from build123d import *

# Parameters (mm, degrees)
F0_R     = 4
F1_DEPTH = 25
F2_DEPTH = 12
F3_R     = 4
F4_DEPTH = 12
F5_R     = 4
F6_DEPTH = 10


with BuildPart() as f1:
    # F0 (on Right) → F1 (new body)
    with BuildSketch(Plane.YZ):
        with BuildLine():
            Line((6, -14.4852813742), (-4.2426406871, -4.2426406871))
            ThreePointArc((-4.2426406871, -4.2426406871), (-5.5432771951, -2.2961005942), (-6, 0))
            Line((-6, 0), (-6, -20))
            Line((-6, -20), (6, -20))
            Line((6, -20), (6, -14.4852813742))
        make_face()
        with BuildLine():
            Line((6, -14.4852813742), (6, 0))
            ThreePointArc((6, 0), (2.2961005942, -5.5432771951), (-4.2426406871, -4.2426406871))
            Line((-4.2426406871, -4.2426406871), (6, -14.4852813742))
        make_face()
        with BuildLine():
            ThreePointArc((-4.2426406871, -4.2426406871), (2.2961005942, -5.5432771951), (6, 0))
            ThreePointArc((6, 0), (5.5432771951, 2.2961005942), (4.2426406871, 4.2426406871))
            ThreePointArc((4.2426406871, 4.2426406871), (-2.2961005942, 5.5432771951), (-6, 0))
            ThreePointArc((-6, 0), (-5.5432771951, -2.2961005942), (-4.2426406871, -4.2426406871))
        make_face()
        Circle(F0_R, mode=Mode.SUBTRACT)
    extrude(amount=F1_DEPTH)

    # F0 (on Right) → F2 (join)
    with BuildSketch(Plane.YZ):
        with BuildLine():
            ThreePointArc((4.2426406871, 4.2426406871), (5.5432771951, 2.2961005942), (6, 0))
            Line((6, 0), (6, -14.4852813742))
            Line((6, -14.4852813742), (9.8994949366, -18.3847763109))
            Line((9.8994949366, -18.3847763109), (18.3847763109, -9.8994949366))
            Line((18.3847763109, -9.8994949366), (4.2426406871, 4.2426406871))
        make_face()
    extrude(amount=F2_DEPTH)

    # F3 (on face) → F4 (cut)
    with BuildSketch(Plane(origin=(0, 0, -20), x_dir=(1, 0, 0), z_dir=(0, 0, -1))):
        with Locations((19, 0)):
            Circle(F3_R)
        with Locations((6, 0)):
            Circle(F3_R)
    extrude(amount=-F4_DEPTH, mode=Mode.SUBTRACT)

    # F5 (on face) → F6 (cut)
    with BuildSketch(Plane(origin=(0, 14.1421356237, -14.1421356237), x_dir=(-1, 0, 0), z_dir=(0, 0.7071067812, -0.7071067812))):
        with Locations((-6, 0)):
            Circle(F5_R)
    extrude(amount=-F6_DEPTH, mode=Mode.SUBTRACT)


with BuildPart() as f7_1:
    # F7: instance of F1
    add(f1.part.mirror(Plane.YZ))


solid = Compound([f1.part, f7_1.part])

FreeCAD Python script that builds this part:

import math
import FreeCAD as App
import Part
import Sketcher
Q = App.Units.Quantity

doc = App.newDocument("Part")
params = doc.addObject("Spreadsheet::Sheet", "Params")
for row, (alias, value) in enumerate([
    ("sketch1_diameter", "8 mm"),
    ("sketch1_radius", "6 mm"),
    ("sketch1_height", "20 mm"),
    ("pad1_length", "25 mm"),
    ("sketch2_radius", "6 mm"),
    ("sketch2_length", "12 mm"),
    ("sketch2_length2", "20 mm"),
    ("pad2_length", "12 mm"),
    ("sketch3_diameter", "8 mm"),
    ("pocket1_length", "12 mm"),
    ("sketch4_diameter", "8 mm"),
    ("pocket2_length", "10 mm"),
], start=1):
    params.set(f"A{row}", alias)
    params.set(f"B{row}", "=" + value)
    params.setAlias(f"B{row}", alias)

body = doc.addObject("PartDesign::Body", "Body")

sketch1 = doc.addObject("Sketcher::SketchObject", "Sketch")
body.addObject(sketch1)
sketch1.AttachmentSupport = (doc.YZ_Plane, [""])
sketch1.MapMode = "FlatFace"
sketch1.addGeometry([
    Part.LineSegment(App.Vector(-6, 0, 0), App.Vector(-6, -20, 0)),
    Part.LineSegment(App.Vector(-6, -20, 0), App.Vector(6, -20, 0)),
    Part.LineSegment(App.Vector(6, -20, 0), App.Vector(6, 0, 0)),
    Part.ArcOfCircle(Part.Circle(App.Vector(0, 0, 0), App.Vector(0, 0, 1), 6), math.radians(0), math.radians(45)),
    Part.ArcOfCircle(Part.Circle(App.Vector(0, 0, 0), App.Vector(0, 0, 1), 6), math.radians(45), math.radians(180)),
    Part.Circle(App.Vector(0, 0, 0), App.Vector(0, 0, 1), 4),
], False)
sketch1.addConstraint([
    Sketcher.Constraint("Coincident", 0, 2, 1, 1),
    Sketcher.Constraint("Coincident", 1, 2, 2, 1),
    Sketcher.Constraint("Tangent", 2, 2, 3, 1),
    Sketcher.Constraint("Tangent", 3, 2, 4, 1),
    Sketcher.Constraint("Tangent", 4, 2, 0, 1),
    Sketcher.Constraint("Vertical", 0),
    Sketcher.Constraint("Horizontal", 1),
    Sketcher.Constraint("Vertical", 2),
    Sketcher.Constraint("Coincident", 3, 3, -1, 1),
    Sketcher.Constraint("Coincident", 5, 3, -1, 1),
    Sketcher.Constraint("Equal", 3, 4),
    Sketcher.Constraint("Diameter", 5, Q("8 mm")),
    Sketcher.Constraint("Radius", 3, Q("6 mm")),
    Sketcher.Constraint("DistanceY", 0, 2, 0, 1, Q("20 mm")),
    Sketcher.Constraint("DistanceX", -1, 1, 3, 2, Q("4.242641 mm")),
])
sketch1.setExpression("Constraints[11]", "Params.sketch1_diameter")
sketch1.setExpression("Constraints[12]", "Params.sketch1_radius")
sketch1.setExpression("Constraints[13]", "Params.sketch1_height")
pad1 = doc.addObject("PartDesign::Pad", "Pad")
body.addObject(pad1)
pad1.Profile = sketch1
pad1.setExpression("Length", "Params.pad1_length")

sketch2 = doc.addObject("Sketcher::SketchObject", "Sketch001")
body.addObject(sketch2)
sketch2.AttachmentSupport = (doc.YZ_Plane, [""])
sketch2.MapMode = "FlatFace"
sketch2.addGeometry([
    Part.ArcOfCircle(Part.Circle(App.Vector(0, 0, 0), App.Vector(0, 0, 1), 6), math.radians(0), math.radians(45)),
    Part.LineSegment(App.Vector(6, 0, 0), App.Vector(6, -14.5, 0)),
    Part.LineSegment(App.Vector(6, -14.5, 0), App.Vector(9.9, -18.4, 0)),
    Part.LineSegment(App.Vector(9.9, -18.4, 0), App.Vector(18.4, -9.9, 0)),
    Part.LineSegment(App.Vector(18.4, -9.9, 0), App.Vector(4.2, 4.2, 0)),
], False)
sketch2.addConstraint([
    Sketcher.Constraint("Tangent", 0, 1, 1, 1),
    Sketcher.Constraint("Coincident", 1, 2, 2, 1),
    Sketcher.Constraint("Coincident", 2, 2, 3, 1),
    Sketcher.Constraint("Coincident", 3, 2, 4, 1),
    Sketcher.Constraint("Tangent", 4, 2, 0, 2),
    Sketcher.Constraint("Vertical", 1),
    Sketcher.Constraint("Coincident", 0, 3, -1, 1),
    Sketcher.Constraint("Perpendicular", 2, 3),
    Sketcher.Constraint("Perpendicular", 3, 4),
    Sketcher.Constraint("Radius", 0, Q("6 mm")),
    Sketcher.Constraint("Angle", 2, Q("-45 deg")),
    Sketcher.Constraint("Distance", 3, Q("12 mm")),
    Sketcher.Constraint("Distance", 4, Q("20 mm")),
])
sketch2.setExpression("Constraints[9]", "Params.sketch2_radius")
sketch2.setExpression("Constraints[11]", "Params.sketch2_length")
sketch2.setExpression("Constraints[12]", "Params.sketch2_length2")
pad2 = doc.addObject("PartDesign::Pad", "Pad001")
body.addObject(pad2)
pad2.Profile = sketch2
pad2.setExpression("Length", "Params.pad2_length")

sketch3 = doc.addObject("Sketcher::SketchObject", "Sketch002")
body.addObject(sketch3)
sketch3.AttachmentSupport = (doc.XY_Plane, [""])
sketch3.MapMode = "FlatFace"
sketch3.AttachmentOffset = App.Placement(App.Vector(0, 0, -20), App.Rotation())
sketch3.addGeometry([
    Part.Circle(App.Vector(19, 0, 0), App.Vector(0, 0, 1), 4),
    Part.Circle(App.Vector(6, 0, 0), App.Vector(0, 0, 1), 4),
], False)
sketch3.addConstraint([
    Sketcher.Constraint("Equal", 0, 1),
    Sketcher.Constraint("PointOnObject", 0, 3, -1),
    Sketcher.Constraint("PointOnObject", 1, 3, -1),
    Sketcher.Constraint("Diameter", 0, Q("8 mm")),
    Sketcher.Constraint("DistanceX", -1, 1, 0, 3, Q("19 mm")),
    Sketcher.Constraint("DistanceX", -1, 1, 1, 3, Q("6 mm")),
])
sketch3.setExpression("Constraints[3]", "Params.sketch3_diameter")
pocket1 = doc.addObject("PartDesign::Pocket", "Pocket")
body.addObject(pocket1)
pocket1.Profile = sketch3
pocket1.setExpression("Length", "Params.pocket1_length")
pocket1.Reversed = True

sketch4 = doc.addObject("Sketcher::SketchObject", "Sketch003")
body.addObject(sketch4)
sketch4.Placement = App.Placement(App.Vector(0, 14.142136, -14.142136), App.Rotation(App.Vector(-1, 0, 0), App.Vector(0, 0.707106781, 0.707106781), App.Vector(0, 0.707106781, -0.707106781), "ZXY"))
sketch4.addGeometry(Part.Circle(App.Vector(-6, 0, 0), App.Vector(0, 0, 1), 4), False)
sketch4.addConstraint([
    Sketcher.Constraint("PointOnObject", 0, 3, -1),
    Sketcher.Constraint("Diameter", 0, Q("8 mm")),
    Sketcher.Constraint("DistanceX", 0, 3, -1, 1, Q("6 mm")),
])
sketch4.setExpression("Constraints[1]", "Params.sketch4_diameter")
pocket2 = doc.addObject("PartDesign::Pocket", "Pocket001")
body.addObject(pocket2)
pocket2.Profile = sketch4
pocket2.setExpression("Length", "Params.pocket2_length")
body2 = doc.addObject("PartDesign::Body", "Body001")
doc.recompute()

mirroring = doc.addObject("Part::Mirroring", "Mirroring")
mirroring.Source = body
mirroring.Base = App.Vector(0, 0, 0)
mirroring.Normal = App.Vector(1, 0, 0)
body2.BaseFeature = mirroring
doc.recompute()
mirroring.Visibility = False

doc.recompute()
